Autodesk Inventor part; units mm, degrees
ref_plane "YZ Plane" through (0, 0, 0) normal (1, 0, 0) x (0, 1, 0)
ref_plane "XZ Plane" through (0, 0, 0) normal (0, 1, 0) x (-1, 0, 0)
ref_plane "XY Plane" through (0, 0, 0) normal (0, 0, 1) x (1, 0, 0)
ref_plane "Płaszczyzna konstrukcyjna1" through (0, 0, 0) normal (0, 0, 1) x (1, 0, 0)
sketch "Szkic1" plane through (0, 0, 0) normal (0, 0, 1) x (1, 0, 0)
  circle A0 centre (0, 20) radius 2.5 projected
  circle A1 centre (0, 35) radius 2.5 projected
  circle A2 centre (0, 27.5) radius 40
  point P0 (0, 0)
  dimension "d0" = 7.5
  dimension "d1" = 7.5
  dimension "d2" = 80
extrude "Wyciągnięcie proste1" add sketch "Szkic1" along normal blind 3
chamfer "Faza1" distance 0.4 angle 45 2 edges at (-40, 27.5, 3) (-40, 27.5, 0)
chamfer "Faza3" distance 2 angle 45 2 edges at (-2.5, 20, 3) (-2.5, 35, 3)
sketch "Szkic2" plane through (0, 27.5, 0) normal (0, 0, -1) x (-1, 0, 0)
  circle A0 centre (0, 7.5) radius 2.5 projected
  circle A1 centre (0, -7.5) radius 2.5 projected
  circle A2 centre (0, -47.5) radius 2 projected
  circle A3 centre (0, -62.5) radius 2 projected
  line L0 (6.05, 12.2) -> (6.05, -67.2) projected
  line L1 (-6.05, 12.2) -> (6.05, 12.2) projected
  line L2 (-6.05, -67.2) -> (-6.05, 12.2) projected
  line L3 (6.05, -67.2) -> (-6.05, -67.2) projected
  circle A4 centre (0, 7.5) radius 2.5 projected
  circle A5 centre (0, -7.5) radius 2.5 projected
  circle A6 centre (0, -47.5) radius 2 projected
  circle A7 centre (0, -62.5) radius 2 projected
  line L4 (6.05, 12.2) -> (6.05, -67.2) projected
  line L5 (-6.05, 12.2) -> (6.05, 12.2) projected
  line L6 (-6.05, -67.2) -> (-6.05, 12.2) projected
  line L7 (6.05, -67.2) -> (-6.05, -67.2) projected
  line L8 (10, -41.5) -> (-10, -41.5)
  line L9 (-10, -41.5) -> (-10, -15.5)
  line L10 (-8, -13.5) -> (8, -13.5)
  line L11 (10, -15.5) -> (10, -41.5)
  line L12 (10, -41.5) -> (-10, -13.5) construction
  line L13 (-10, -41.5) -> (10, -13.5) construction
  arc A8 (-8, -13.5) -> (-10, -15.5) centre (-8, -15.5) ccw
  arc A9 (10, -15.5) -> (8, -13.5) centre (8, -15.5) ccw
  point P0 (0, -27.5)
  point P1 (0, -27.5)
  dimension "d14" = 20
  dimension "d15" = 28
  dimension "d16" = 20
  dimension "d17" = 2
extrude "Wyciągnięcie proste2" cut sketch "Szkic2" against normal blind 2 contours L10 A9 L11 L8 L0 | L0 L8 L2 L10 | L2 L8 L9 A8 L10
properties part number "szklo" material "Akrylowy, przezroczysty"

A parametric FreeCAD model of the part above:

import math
import FreeCAD as App
import Part
import Sketcher


def edges_at(feature, points):
    """Names of the edges that pass closest to the given points."""
    edges = feature.Shape.Edges
    near = lambda p: min(range(len(edges)), key=lambda i: edges[i].distToShape(Part.Vertex(*p))[0])
    return sorted({f"Edge{near(p) + 1}" for p in points})

doc = App.newDocument("Part")
body = doc.addObject("PartDesign::Body", "Body")

sketch1 = body.newObject("Sketcher::SketchObject", "Sketch")
sketch1.AttachmentSupport = (doc.getObject("XY_Plane"), [""])
sketch1.MapMode = "FlatFace"
sketch1.addGeometry(Part.Circle(App.Vector(0, 27.5, 0), App.Vector(0, 0, 1), 40), False)
sketch1.addGeometry(Part.Circle(App.Vector(0, 20, 0), App.Vector(0, 0, 1), 2.5), False)
sketch1.addGeometry(Part.Circle(App.Vector(0, 35, 0), App.Vector(0, 0, 1), 2.5), False)
sketch1.addConstraint(Sketcher.Constraint("Equal", 1, 2))
sketch1.addConstraint(Sketcher.Constraint("PointOnObject", 0, 3, -2))
sketch1.addConstraint(Sketcher.Constraint("PointOnObject", 1, 3, -2))
sketch1.addConstraint(Sketcher.Constraint("PointOnObject", 2, 3, -2))
sketch1.addConstraint(Sketcher.Constraint("Diameter", 0, 80.0))
sketch1.addConstraint(Sketcher.Constraint("Diameter", 1, 5.0))
sketch1.addConstraint(Sketcher.Constraint("DistanceY", 1, 3, 0, 3, 7.5))
sketch1.addConstraint(Sketcher.Constraint("DistanceY", 0, 3, 2, 3, 7.5))
sketch1.addConstraint(Sketcher.Constraint("DistanceY", -1, 1, 1, 3, 20.0))
pad1 = body.newObject("PartDesign::Pad", "Pad")
pad1.Profile = sketch1
pad1.Length = 3
doc.recompute()

chamfer = body.newObject("PartDesign::Chamfer", "Chamfer")
chamfer.Base = (pad1, edges_at(pad1, [(-40, 27.5, 3), (-40, 27.5, 0)]))
chamfer.Size = 0.4
doc.recompute()

chamfer2 = body.newObject("PartDesign::Chamfer", "Chamfer001")
chamfer2.Base = (chamfer, edges_at(chamfer, [(-2.5, 20, 3), (-2.5, 35, 3)]))
chamfer2.Size = 2

sketch2 = body.newObject("Sketcher::SketchObject", "Sketch001")
sketch2.AttachmentSupport = (doc.getObject("XY_Plane"), [""])
sketch2.MapMode = "FlatFace"
sketch2.addGeometry(Part.LineSegment(App.Vector(-8, 14, 0), App.Vector(8, 14, 0)), False)
sketch2.addGeometry(Part.ArcOfCircle(Part.Circle(App.Vector(8, 12, 0), App.Vector(0, 0, 1), 2), math.radians(0), math.radians(90)), False)
sketch2.addGeometry(Part.LineSegment(App.Vector(10, 12, 0), App.Vector(10, -14, 0)), False)
sketch2.addGeometry(Part.LineSegment(App.Vector(10, -14, 0), App.Vector(-10, -14, 0)), False)
sketch2.addGeometry(Part.LineSegment(App.Vector(-10, -14, 0), App.Vector(-10, 12, 0)), False)
sketch2.addGeometry(Part.ArcOfCircle(Part.Circle(App.Vector(-8, 12, 0), App.Vector(0, 0, 1), 2), math.radians(90), math.radians(180)), False)
sketch2.addConstraint(Sketcher.Constraint("Tangent", 0, 2, 1, 2))
sketch2.addConstraint(Sketcher.Constraint("Tangent", 1, 1, 2, 1))
sketch2.addConstraint(Sketcher.Constraint("Coincident", 2, 2, 3, 1))
sketch2.addConstraint(Sketcher.Constraint("Coincident", 3, 2, 4, 1))
sketch2.addConstraint(Sketcher.Constraint("Tangent", 4, 2, 5, 2))
sketch2.addConstraint(Sketcher.Constraint("Tangent", 5, 1, 0, 1))
sketch2.addConstraint(Sketcher.Constraint("Horizontal", 0))
sketch2.addConstraint(Sketcher.Constraint("Vertical", 2))
sketch2.addConstraint(Sketcher.Constraint("Horizontal", 3))
sketch2.addConstraint(Sketcher.Constraint("Vertical", 4))
sketch2.addConstraint(Sketcher.Constraint("Equal", 1, 5))
sketch2.addConstraint(Sketcher.Constraint("Radius", 1, 2.0))
sketch2.addConstraint(Sketcher.Constraint("DistanceX", 3, 2, 3, 1, 20.0))
sketch2.addConstraint(Sketcher.Constraint("DistanceY", 2, 2, 0, 2, 28.0))
sketch2.addConstraint(Sketcher.Constraint("DistanceX", -1, 1, 1, 3, 8.0))
sketch2.addConstraint(Sketcher.Constraint("DistanceY", -1, 1, 1, 3, 12.0))
pocket1 = body.newObject("PartDesign::Pocket", "Pocket")
pocket1.Profile = sketch2
pocket1.Length = 2
pocket1.Reversed = True

doc.recompute()
